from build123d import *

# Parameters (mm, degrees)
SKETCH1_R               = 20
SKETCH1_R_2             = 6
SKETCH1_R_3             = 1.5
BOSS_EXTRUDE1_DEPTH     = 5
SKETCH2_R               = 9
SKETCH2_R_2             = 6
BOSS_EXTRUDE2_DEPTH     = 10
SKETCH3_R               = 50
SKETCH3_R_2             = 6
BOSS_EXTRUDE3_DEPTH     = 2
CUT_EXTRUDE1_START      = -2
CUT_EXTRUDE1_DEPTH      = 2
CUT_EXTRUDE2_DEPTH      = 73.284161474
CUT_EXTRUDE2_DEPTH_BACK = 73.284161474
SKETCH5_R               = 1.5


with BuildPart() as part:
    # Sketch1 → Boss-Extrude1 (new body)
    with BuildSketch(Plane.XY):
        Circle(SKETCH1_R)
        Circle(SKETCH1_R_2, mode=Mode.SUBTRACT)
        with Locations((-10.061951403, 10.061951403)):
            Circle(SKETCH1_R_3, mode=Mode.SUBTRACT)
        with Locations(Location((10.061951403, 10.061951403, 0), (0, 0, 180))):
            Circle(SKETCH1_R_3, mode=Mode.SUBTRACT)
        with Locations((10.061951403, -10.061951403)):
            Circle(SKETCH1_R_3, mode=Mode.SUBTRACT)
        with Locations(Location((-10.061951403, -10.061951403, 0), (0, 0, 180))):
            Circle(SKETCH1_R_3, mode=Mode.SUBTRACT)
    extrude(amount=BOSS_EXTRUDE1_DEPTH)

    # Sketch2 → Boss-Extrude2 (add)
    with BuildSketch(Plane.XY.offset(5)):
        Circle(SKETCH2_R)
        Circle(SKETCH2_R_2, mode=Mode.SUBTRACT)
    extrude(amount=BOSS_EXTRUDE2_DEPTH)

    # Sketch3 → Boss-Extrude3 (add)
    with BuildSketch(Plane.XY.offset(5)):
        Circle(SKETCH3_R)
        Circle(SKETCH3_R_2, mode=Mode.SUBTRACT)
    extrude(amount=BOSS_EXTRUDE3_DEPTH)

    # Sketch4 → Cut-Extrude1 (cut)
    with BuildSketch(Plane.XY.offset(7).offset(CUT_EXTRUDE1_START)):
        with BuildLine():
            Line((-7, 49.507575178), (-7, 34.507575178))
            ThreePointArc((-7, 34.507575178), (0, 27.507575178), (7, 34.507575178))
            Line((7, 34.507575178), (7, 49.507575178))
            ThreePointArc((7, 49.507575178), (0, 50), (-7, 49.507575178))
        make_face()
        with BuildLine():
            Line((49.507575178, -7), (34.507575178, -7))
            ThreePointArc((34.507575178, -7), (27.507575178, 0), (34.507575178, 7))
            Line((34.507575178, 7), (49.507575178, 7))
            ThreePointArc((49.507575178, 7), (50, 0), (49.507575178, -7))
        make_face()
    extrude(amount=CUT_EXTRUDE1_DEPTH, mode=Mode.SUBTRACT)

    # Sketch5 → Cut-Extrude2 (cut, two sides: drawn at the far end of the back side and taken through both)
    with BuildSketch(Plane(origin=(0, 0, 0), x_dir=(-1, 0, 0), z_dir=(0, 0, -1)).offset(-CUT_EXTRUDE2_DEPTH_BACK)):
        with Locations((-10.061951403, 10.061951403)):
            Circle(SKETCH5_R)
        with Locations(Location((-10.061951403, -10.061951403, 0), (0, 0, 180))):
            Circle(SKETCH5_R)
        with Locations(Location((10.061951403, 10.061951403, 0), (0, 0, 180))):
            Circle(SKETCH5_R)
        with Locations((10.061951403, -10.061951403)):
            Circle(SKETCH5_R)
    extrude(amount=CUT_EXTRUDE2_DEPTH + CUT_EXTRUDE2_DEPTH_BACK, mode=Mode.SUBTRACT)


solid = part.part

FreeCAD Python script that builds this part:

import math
import FreeCAD as App
import Part
import Sketcher

V = App.Vector

doc = App.newDocument("Part")
body = doc.addObject("PartDesign::Body", "Body")

sketch1 = body.newObject("Sketcher::SketchObject", "Sketch")
sketch1.AttachmentSupport = (doc.getObject("XY_Plane"), [""])
sketch1.MapMode = "FlatFace"
sketch1.addGeometry(Part.Circle(V(0, 0, 0), V(0, 0, 1), 20), False)
sketch1.addGeometry(Part.Circle(V(-10.061951, -10.061951, 0), V(0, 0, 1), 1.5), False)
sketch1.addGeometry(Part.Circle(V(10.061951, -10.061951, 0), V(0, 0, 1), 1.5), False)
sketch1.addGeometry(Part.Circle(V(0, 0, 0), V(0, 0, 1), 6), False)
sketch1.addGeometry(Part.Circle(V(-10.061951, 10.061951, 0), V(0, 0, 1), 1.5), False)
sketch1.addGeometry(Part.Circle(V(10.061951, 10.061951, 0), V(0, 0, 1), 1.5), False)
sketch1.addConstraint(Sketcher.Constraint("Coincident", 0, 3, -1, 1))
sketch1.addConstraint(Sketcher.Constraint("Coincident", 3, 3, -1, 1))
sketch1.addConstraint(Sketcher.Constraint("Equal", 1, 2))
sketch1.addConstraint(Sketcher.Constraint("Equal", 2, 4))
sketch1.addConstraint(Sketcher.Constraint("Equal", 4, 5))
sketch1.addConstraint(Sketcher.Constraint("Symmetric", 2, 3, 4, 3, -1, 1))
sketch1.addConstraint(Sketcher.Constraint("Symmetric", 1, 3, 5, 3, -1, 1))
sketch1.addConstraint(Sketcher.Constraint("Symmetric", 1, 3, 2, 3, -2))
sketch1.addConstraint(Sketcher.Constraint("Diameter", 0, 40.0))
sketch1.addConstraint(Sketcher.Constraint("Diameter", 1, 3.0))
sketch1.addConstraint(Sketcher.Constraint("Diameter", 3, 12.0))
sketch1.addConstraint(Sketcher.Constraint("DistanceX", 1, 3, -1, 1, 10.061951))
sketch1.addConstraint(Sketcher.Constraint("DistanceY", 1, 3, -1, 1, 10.061951))
pad1 = body.newObject("PartDesign::Pad", "Pad")
pad1.Profile = sketch1
pad1.Length = 5

sketch2 = body.newObject("Sketcher::SketchObject", "Sketch001")
sketch2.AttachmentSupport = (doc.getObject("XY_Plane"), [""])
sketch2.MapMode = "FlatFace"
sketch2.AttachmentOffset = App.Placement(V(0, 0, 5), App.Rotation())
sketch2.addGeometry(Part.Circle(V(0, 0, 0), V(0, 0, 1), 9), False)
sketch2.addGeometry(Part.Circle(V(0, 0, 0), V(0, 0, 1), 6), False)
sketch2.addConstraint(Sketcher.Constraint("Coincident", 0, 3, -1, 1))
sketch2.addConstraint(Sketcher.Constraint("Coincident", 1, 3, -1, 1))
sketch2.addConstraint(Sketcher.Constraint("Diameter", 0, 18.0))
sketch2.addConstraint(Sketcher.Constraint("Diameter", 1, 12.0))
pad2 = body.newObject("PartDesign::Pad", "Pad001")
pad2.Profile = sketch2
pad2.Length = 10

sketch3 = body.newObject("Sketcher::SketchObject", "Sketch002")
sketch3.AttachmentSupport = (doc.getObject("XY_Plane"), [""])
sketch3.MapMode = "FlatFace"
sketch3.AttachmentOffset = App.Placement(V(0, 0, 5), App.Rotation())
sketch3.addGeometry(Part.Circle(V(0, 0, 0), V(0, 0, 1), 50), False)
sketch3.addGeometry(Part.Circle(V(0, 0, 0), V(0, 0, 1), 6), False)
sketch3.addConstraint(Sketcher.Constraint("Coincident", 0, 3, -1, 1))
sketch3.addConstraint(Sketcher.Constraint("Coincident", 1, 3, -1, 1))
sketch3.addConstraint(Sketcher.Constraint("Diameter", 0, 100.0))
sketch3.addConstraint(Sketcher.Constraint("Diameter", 1, 12.0))
pad3 = body.newObject("PartDesign::Pad", "Pad002")
pad3.Profile = sketch3
pad3.Length = 2

sketch4 = body.newObject("Sketcher::SketchObject", "Sketch003")
sketch4.AttachmentSupport = (doc.getObject("XY_Plane"), [""])
sketch4.MapMode = "FlatFace"
sketch4.AttachmentOffset = App.Placement(V(0, 0, 5), App.Rotation())
sketch4.addGeometry(Part.LineSegment(V(-7, 49.507575, 0), V(-7, 34.507575, 0)), False)
sketch4.addGeometry(Part.ArcOfCircle(Part.Circle(V(0, 34.507575, 0), V(0, 0, 1), 7), math.radians(180), math.radians(360)), False)
sketch4.addGeometry(Part.LineSegment(V(7, 34.507575, 0), V(7, 49.507575, 0)), False)
sketch4.addGeometry(Part.ArcOfCircle(Part.Circle(V(0, 0, 0), V(0, 0, 1), 50), math.radians(81.952154), math.radians(98.047846)), False)
sketch4.addGeometry(Part.LineSegment(V(34.507575, -7, 0), V(49.507575, -7, 0)), False)
sketch4.addGeometry(Part.ArcOfCircle(Part.Circle(V(0, 0, 0), V(0, 0, 1), 50), math.radians(-8.047846), math.radians(8.047846)), False)
sketch4.addGeometry(Part.LineSegment(V(49.507575, 7, 0), V(34.507575, 7, 0)), False)
sketch4.addGeometry(Part.ArcOfCircle(Part.Circle(V(34.507575, 0, 0), V(0, 0, 1), 7), math.radians(90), math.radians(270)), False)
sketch4.addConstraint(Sketcher.Constraint("Tangent", 0, 2, 1, 1))
sketch4.addConstraint(Sketcher.Constraint("Tangent", 1, 2, 2, 1))
sketch4.addConstraint(Sketcher.Constraint("Coincident", 2, 2, 3, 1))
sketch4.addConstraint(Sketcher.Constraint("Coincident", 3, 2, 0, 1))
sketch4.addConstraint(Sketcher.Constraint("Coincident", 4, 2, 5, 1))
sketch4.addConstraint(Sketcher.Constraint("Coincident", 5, 2, 6, 1))
sketch4.addConstraint(Sketcher.Constraint("Tangent", 6, 2, 7, 1))
sketch4.addConstraint(Sketcher.Constraint("Tangent", 7, 2, 4, 1))
sketch4.addConstraint(Sketcher.Constraint("Vertical", 0))
sketch4.addConstraint(Sketcher.Constraint("Vertical", 2))
sketch4.addConstraint(Sketcher.Constraint("Horizontal", 4))
sketch4.addConstraint(Sketcher.Constraint("Horizontal", 6))
sketch4.addConstraint(Sketcher.Constraint("Coincident", 3, 3, -1, 1))
sketch4.addConstraint(Sketcher.Constraint("Coincident", 5, 3, -1, 1))
sketch4.addConstraint(Sketcher.Constraint("Equal", 3, 5))
sketch4.addConstraint(Sketcher.Constraint("Equal", 1, 7))
sketch4.addConstraint(Sketcher.Constraint("PointOnObject", 1, 3, -2))
sketch4.addConstraint(Sketcher.Constraint("PointOnObject", 7, 3, -1))
sketch4.addConstraint(Sketcher.Constraint("Equal", 6, 0))
sketch4.addConstraint(Sketcher.Constraint("Radius", 1, 7.0))
sketch4.addConstraint(Sketcher.Constraint("Radius", 3, 50.0))
sketch4.addConstraint(Sketcher.Constraint("DistanceX", 4, 1, 4, 2, 15.0))
pocket1 = body.newObject("PartDesign::Pocket", "Pocket")
pocket1.Profile = sketch4
pocket1.Length = 2
pocket1.Reversed = True

sketch5 = body.newObject("Sketcher::SketchObject", "Sketch004")
sketch5.AttachmentSupport = (doc.getObject("XY_Plane"), [""])
sketch5.MapMode = "FlatFace"
sketch5.addGeometry(Part.Circle(V(10.061951, 10.061951, 0), V(0, 0, 1), 1.5), False)
sketch5.addGeometry(Part.Circle(V(10.061951, -10.061951, 0), V(0, 0, 1), 1.5), False)
sketch5.addGeometry(Part.Circle(V(-10.061951, 10.061951, 0), V(0, 0, 1), 1.5), False)
sketch5.addGeometry(Part.Circle(V(-10.061951, -10.061951, 0), V(0, 0, 1), 1.5), False)
sketch5.addConstraint(Sketcher.Constraint("Equal", 0, 1))
sketch5.addConstraint(Sketcher.Constraint("Equal", 1, 2))
sketch5.addConstraint(Sketcher.Constraint("Equal", 2, 3))
sketch5.addConstraint(Sketcher.Constraint("Symmetric", 1, 3, 2, 3, -1, 1))
sketch5.addConstraint(Sketcher.Constraint("Symmetric", 0, 3, 3, 3, -1, 1))
sketch5.addConstraint(Sketcher.Constraint("Symmetric", 0, 3, 2, 3, -2))
sketch5.addConstraint(Sketcher.Constraint("Diameter", 0, 3.0))
sketch5.addConstraint(Sketcher.Constraint("DistanceX", -1, 1, 0, 3, 10.061951))
sketch5.addConstraint(Sketcher.Constraint("DistanceY", -1, 1, 0, 3, 10.061951))
pocket2 = body.newObject("PartDesign::Pocket", "Pocket001")
pocket2.Profile = sketch5
pocket2.Type = "ThroughAll"
pocket2.Midplane = True

doc.recompute()
